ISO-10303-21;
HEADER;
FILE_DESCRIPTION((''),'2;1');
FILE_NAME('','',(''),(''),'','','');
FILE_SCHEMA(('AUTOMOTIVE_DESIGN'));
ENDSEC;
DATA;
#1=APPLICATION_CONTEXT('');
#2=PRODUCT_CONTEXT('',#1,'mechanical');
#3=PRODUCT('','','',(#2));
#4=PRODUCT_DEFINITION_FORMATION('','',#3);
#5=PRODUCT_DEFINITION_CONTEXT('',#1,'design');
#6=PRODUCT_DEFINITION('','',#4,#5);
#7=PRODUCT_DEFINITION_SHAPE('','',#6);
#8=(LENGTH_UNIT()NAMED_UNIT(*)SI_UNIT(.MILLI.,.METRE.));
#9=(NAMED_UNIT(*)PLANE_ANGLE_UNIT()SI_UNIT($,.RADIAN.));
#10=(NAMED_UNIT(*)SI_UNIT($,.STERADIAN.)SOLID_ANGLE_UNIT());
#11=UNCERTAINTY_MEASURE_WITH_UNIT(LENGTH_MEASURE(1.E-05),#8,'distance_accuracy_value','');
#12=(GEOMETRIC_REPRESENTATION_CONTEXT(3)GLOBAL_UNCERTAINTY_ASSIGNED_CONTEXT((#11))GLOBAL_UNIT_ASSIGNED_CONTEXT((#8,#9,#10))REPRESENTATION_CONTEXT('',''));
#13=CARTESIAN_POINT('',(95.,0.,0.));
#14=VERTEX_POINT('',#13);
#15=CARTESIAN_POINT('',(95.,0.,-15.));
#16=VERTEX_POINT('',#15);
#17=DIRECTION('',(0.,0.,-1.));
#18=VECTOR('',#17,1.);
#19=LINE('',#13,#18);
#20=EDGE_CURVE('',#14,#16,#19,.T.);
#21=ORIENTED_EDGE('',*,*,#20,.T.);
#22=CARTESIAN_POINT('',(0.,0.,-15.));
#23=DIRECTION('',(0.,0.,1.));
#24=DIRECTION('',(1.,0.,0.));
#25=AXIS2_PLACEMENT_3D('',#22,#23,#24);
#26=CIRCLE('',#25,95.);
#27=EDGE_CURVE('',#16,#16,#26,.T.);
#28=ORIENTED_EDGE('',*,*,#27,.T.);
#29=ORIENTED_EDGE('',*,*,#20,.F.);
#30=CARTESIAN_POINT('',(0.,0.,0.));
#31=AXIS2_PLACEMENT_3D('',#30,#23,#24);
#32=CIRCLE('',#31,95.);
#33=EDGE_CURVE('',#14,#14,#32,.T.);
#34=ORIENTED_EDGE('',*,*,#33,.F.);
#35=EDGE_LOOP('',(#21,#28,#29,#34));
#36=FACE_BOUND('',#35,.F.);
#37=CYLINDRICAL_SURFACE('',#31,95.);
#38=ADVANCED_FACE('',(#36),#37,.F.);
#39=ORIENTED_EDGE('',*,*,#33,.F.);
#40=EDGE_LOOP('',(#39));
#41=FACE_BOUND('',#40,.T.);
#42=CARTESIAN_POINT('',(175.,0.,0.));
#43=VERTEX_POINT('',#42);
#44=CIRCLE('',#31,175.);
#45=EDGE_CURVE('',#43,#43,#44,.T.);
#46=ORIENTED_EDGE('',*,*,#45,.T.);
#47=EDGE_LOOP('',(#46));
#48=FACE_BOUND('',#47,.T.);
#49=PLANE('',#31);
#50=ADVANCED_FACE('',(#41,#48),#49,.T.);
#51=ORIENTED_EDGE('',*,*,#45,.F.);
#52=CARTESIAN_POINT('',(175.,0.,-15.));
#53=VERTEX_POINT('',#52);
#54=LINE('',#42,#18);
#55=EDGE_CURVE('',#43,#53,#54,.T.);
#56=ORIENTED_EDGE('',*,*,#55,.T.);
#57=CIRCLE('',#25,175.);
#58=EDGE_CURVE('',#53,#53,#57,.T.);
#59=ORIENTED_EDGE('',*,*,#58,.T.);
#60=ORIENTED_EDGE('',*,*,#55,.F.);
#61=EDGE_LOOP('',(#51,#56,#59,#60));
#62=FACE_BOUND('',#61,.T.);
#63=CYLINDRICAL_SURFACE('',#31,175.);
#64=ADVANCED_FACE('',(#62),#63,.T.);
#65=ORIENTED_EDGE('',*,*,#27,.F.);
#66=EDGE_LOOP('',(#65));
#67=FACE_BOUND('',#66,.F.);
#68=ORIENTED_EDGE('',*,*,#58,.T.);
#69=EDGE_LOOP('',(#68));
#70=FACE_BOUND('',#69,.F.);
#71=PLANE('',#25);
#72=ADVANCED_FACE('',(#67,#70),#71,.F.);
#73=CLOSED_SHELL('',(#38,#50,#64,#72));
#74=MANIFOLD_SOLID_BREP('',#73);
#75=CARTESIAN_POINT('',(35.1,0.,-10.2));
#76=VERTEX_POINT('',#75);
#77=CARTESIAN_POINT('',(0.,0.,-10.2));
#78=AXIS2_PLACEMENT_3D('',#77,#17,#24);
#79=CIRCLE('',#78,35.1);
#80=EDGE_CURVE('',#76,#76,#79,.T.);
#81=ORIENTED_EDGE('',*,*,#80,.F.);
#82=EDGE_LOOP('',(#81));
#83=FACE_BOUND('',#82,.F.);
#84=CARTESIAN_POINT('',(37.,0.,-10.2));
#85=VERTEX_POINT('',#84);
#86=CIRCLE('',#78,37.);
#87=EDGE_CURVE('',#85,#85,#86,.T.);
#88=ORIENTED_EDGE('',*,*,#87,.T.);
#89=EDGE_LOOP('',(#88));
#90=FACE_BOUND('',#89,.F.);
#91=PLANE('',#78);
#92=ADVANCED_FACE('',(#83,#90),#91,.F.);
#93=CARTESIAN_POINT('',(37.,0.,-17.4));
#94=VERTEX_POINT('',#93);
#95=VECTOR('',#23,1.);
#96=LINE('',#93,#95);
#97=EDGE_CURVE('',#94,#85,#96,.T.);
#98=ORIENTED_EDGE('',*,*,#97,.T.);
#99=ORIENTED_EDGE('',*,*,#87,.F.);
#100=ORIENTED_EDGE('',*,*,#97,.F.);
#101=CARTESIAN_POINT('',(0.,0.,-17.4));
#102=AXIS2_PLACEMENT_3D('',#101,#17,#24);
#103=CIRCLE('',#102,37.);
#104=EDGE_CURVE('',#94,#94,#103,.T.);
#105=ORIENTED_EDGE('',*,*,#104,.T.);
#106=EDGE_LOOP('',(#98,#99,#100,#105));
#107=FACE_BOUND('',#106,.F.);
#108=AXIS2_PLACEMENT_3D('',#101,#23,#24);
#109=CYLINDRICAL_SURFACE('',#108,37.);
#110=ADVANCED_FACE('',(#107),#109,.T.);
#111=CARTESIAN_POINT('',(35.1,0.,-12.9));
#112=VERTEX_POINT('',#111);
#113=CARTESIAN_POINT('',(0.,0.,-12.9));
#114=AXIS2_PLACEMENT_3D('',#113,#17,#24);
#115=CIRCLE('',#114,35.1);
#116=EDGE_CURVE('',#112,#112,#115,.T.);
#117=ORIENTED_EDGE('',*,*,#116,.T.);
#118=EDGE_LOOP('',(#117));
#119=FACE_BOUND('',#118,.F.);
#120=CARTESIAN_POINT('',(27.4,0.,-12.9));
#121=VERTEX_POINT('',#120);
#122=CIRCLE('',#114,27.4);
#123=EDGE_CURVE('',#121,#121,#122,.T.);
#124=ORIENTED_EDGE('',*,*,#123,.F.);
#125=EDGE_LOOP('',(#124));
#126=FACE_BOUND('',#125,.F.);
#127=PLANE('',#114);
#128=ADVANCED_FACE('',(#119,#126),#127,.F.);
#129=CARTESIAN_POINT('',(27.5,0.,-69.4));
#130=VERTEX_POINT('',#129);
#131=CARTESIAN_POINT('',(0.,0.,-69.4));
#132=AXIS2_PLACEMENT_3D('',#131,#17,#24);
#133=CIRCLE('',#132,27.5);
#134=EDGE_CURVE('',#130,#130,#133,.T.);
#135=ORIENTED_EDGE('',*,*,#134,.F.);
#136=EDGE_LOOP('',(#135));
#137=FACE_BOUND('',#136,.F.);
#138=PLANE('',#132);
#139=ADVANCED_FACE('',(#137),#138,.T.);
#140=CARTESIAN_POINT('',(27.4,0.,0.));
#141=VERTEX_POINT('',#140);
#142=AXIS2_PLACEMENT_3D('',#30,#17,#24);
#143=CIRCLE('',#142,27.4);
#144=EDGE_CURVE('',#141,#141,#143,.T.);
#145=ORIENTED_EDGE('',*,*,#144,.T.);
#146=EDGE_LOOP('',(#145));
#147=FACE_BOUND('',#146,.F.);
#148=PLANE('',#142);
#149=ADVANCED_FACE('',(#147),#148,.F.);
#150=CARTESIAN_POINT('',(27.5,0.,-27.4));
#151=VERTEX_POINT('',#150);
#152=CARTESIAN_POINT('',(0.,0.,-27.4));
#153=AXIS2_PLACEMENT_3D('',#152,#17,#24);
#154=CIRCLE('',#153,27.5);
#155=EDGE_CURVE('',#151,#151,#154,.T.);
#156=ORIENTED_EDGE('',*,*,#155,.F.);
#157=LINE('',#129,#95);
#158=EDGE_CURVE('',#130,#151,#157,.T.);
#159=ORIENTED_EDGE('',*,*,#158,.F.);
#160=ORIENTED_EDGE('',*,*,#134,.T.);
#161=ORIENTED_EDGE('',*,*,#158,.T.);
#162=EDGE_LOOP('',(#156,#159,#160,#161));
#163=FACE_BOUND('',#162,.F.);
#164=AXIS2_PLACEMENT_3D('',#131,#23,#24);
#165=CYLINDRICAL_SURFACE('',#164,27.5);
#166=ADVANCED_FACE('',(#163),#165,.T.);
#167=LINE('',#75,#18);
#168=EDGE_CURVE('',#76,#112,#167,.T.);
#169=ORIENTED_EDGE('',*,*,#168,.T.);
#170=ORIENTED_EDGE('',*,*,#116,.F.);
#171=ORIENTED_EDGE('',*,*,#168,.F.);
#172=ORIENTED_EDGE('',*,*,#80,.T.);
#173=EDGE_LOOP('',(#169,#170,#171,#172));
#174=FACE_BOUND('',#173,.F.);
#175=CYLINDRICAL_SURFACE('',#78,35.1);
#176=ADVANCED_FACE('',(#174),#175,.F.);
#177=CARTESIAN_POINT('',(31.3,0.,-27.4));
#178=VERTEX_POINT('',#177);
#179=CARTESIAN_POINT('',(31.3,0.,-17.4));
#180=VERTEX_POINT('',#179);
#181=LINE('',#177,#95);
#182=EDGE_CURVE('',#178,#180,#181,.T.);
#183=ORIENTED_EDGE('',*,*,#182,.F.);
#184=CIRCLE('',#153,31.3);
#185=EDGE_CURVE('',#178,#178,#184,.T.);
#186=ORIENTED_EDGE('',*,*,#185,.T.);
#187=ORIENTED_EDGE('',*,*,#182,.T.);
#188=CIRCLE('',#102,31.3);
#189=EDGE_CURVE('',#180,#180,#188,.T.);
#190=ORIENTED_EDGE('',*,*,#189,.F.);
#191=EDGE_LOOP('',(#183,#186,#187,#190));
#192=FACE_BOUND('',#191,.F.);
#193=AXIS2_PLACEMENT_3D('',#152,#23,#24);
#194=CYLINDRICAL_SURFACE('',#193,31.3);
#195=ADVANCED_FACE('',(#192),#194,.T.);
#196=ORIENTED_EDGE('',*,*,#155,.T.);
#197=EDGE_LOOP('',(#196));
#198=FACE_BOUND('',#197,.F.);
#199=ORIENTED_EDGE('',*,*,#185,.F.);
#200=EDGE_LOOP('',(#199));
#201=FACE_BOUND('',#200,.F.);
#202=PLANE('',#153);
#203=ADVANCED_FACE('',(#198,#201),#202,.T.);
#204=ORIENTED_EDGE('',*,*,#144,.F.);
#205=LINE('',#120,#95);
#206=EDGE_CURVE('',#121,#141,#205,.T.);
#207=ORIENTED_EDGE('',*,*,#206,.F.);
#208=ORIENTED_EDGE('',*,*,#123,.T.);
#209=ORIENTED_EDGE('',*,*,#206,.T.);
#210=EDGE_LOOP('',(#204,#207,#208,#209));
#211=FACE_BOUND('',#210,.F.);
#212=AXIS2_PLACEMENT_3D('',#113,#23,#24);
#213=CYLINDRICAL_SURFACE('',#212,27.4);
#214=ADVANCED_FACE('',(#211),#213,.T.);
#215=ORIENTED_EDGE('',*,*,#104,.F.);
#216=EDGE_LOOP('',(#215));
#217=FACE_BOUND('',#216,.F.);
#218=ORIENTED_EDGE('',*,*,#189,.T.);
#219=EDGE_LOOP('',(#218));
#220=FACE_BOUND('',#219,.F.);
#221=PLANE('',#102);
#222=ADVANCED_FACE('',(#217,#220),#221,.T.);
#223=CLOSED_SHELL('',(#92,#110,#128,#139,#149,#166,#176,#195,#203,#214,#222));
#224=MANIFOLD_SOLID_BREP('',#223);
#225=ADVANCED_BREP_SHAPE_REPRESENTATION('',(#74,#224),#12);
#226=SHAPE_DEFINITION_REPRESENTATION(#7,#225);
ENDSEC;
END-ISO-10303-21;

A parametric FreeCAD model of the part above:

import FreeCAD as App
import Part
import Sketcher

V = App.Vector
Q = App.Units.Quantity


def add_polygon(sketch, points):
    """Adds a closed chain of lines whose ends are joined by coincident constraints."""
    first, n = sketch.GeometryCount, len(points)
    for a, b in zip(points, points[1:] + points[:1]):
        sketch.addGeometry(Part.LineSegment(App.Vector(*a, 0), App.Vector(*b, 0)), False)
    for i in range(n):
        sketch.addConstraint(Sketcher.Constraint("Coincident", first + i, 2, first + (i + 1) % n, 1))

doc = App.newDocument("Part")
params = doc.addObject("Spreadsheet::Sheet", "Params")
for row, (alias, value) in enumerate([
    ("sketch1_height", "42 mm"),
    ("sketch1_height2", "10 mm"),
    ("sketch1_width", "27.4 mm"),
    ("sketch1_width2", "27.5 mm"),
    ("sketch1_width3", "3.8 mm"),
    ("revolution_angle", "360 deg"),
    ("sketch2_diameter", "350 mm"),
    ("sketch2_diameter2", "190 mm"),
    ("pad1_length", "15 mm"),
], start=1):
    params.set(f"A{row}", alias)
    params.set(f"B{row}", "=" + value)
    params.setAlias(f"B{row}", alias)

body = doc.addObject("PartDesign::Body", "Body")

sketch1 = doc.addObject("Sketcher::SketchObject", "Sketch")
body.addObject(sketch1)
sketch1.AttachmentSupport = (doc.XZ_Plane, [""])
sketch1.MapMode = "FlatFace"
add_polygon(sketch1, [(27.4, 0), (0, 0), (0, -69.4), (27.5, -69.4), (27.5, -27.4), (31.3, -27.4), (31.3, -17.4), (37, -17.4), (37, -10.2), (35.1, -10.2), (35.1, -12.9), (27.4, -12.9)])
sketch1.addConstraint([
    Sketcher.Constraint("Horizontal", 0),
    Sketcher.Constraint("Vertical", 1),
    Sketcher.Constraint("Horizontal", 2),
    Sketcher.Constraint("Vertical", 3),
    Sketcher.Constraint("Horizontal", 4),
    Sketcher.Constraint("Vertical", 5),
    Sketcher.Constraint("Horizontal", 6),
    Sketcher.Constraint("Vertical", 7),
    Sketcher.Constraint("Horizontal", 8),
    Sketcher.Constraint("Vertical", 9),
    Sketcher.Constraint("Horizontal", 10),
    Sketcher.Constraint("Vertical", 11),
    Sketcher.Constraint("Coincident", 0, 2, -1, 1),
    Sketcher.Constraint("DistanceY", 3, 1, 3, 2, Q("42 mm")),
    Sketcher.Constraint("DistanceY", 5, 1, 5, 2, Q("10 mm")),
    Sketcher.Constraint("DistanceX", 0, 2, 0, 1, Q("27.4 mm")),
    Sketcher.Constraint("DistanceX", 2, 1, 2, 2, Q("27.5 mm")),
    Sketcher.Constraint("DistanceX", 4, 1, 4, 2, Q("3.8 mm")),
    Sketcher.Constraint("DistanceX", 6, 1, 6, 2, Q("5.7 mm")),
    Sketcher.Constraint("DistanceX", 8, 2, 8, 1, Q("1.9 mm")),
    Sketcher.Constraint("DistanceY", 1, 2, 1, 1, Q("69.4 mm")),
    Sketcher.Constraint("DistanceY", 7, 1, 7, 2, Q("7.2 mm")),
    Sketcher.Constraint("DistanceY", 9, 2, 9, 1, Q("2.7 mm")),
])
sketch1.setExpression("Constraints[25]", "Params.sketch1_height")
sketch1.setExpression("Constraints[26]", "Params.sketch1_height2")
sketch1.setExpression("Constraints[27]", "Params.sketch1_width")
sketch1.setExpression("Constraints[28]", "Params.sketch1_width2")
sketch1.setExpression("Constraints[29]", "Params.sketch1_width3")
revolution = doc.addObject("PartDesign::Revolution", "Revolution")
body.addObject(revolution)
revolution.Profile = sketch1
revolution.ReferenceAxis = (sketch1, ["V_Axis"])
revolution.setExpression("Angle", "Params.revolution_angle")
body2 = doc.addObject("PartDesign::Body", "Body001")

sketch2 = doc.addObject("Sketcher::SketchObject", "Sketch001")
body2.addObject(sketch2)
sketch2.AttachmentSupport = (doc.getObject("XY_Plane001"), [""])
sketch2.MapMode = "FlatFace"
sketch2.addGeometry([
    Part.Circle(V(0, 0, 0), V(0, 0, 1), 175),
    Part.Circle(V(0, 0, 0), V(0, 0, 1), 95),
], False)
sketch2.addConstraint([
    Sketcher.Constraint("Coincident", 0, 3, -1, 1),
    Sketcher.Constraint("Coincident", 1, 3, -1, 1),
    Sketcher.Constraint("Diameter", 0, Q("350 mm")),
    Sketcher.Constraint("Diameter", 1, Q("190 mm")),
])
sketch2.setExpression("Constraints[2]", "Params.sketch2_diameter")
sketch2.setExpression("Constraints[3]", "Params.sketch2_diameter2")
pad1 = doc.addObject("PartDesign::Pad", "Pad")
body2.addObject(pad1)
pad1.Profile = sketch2
pad1.setExpression("Length", "Params.pad1_length")
pad1.Reversed = True

doc.recompute()
